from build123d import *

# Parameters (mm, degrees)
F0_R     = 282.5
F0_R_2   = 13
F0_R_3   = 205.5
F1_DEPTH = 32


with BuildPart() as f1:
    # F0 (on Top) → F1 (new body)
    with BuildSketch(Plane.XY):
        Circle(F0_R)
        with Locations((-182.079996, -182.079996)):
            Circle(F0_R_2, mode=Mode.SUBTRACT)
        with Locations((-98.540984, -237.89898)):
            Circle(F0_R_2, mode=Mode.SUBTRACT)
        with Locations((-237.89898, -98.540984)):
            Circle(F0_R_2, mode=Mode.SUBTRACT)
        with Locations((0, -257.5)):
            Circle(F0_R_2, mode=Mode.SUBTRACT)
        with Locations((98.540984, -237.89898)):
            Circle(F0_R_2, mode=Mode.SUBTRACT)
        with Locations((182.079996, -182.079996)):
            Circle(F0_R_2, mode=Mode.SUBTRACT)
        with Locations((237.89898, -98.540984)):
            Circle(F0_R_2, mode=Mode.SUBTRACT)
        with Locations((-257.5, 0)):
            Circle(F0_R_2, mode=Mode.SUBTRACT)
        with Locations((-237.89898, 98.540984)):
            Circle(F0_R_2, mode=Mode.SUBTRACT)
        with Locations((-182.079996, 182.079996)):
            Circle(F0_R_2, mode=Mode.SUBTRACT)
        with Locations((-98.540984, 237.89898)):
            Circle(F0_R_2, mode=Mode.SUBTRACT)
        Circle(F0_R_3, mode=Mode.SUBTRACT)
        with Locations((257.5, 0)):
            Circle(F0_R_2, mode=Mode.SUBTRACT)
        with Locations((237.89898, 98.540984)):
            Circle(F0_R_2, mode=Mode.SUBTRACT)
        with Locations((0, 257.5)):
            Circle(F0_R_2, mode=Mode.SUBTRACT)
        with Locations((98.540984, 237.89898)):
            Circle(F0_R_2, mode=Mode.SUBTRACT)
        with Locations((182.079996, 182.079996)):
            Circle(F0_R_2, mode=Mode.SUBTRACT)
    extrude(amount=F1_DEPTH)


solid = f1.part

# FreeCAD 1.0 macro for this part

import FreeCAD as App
import Part
import Sketcher

doc = App.newDocument("Part")
body = doc.addObject("PartDesign::Body", "Body")

sketch1 = body.newObject("Sketcher::SketchObject", "Sketch")
sketch1.AttachmentSupport = (doc.getObject("XY_Plane"), [""])
sketch1.MapMode = "FlatFace"
sketch1.addGeometry([
    Part.Circle(App.Vector(0, 0, 0), App.Vector(0, 0, 1), 282),
    Part.Circle(App.Vector(-182, -182, 0), App.Vector(0, 0, 1), 13),
    Part.Circle(App.Vector(-99, -238, 0), App.Vector(0, 0, 1), 13),
    Part.Circle(App.Vector(-238, -99, 0), App.Vector(0, 0, 1), 13),
    Part.Circle(App.Vector(0, -258, 0), App.Vector(0, 0, 1), 13),
    Part.Circle(App.Vector(99, -238, 0), App.Vector(0, 0, 1), 13),
    Part.Circle(App.Vector(182, -182, 0), App.Vector(0, 0, 1), 13),
    Part.Circle(App.Vector(238, -99, 0), App.Vector(0, 0, 1), 13),
    Part.Circle(App.Vector(-258, 0, 0), App.Vector(0, 0, 1), 13),
    Part.Circle(App.Vector(-238, 99, 0), App.Vector(0, 0, 1), 13),
    Part.Circle(App.Vector(-182, 182, 0), App.Vector(0, 0, 1), 13),
    Part.Circle(App.Vector(-99, 238, 0), App.Vector(0, 0, 1), 13),
    Part.Circle(App.Vector(0, 0, 0), App.Vector(0, 0, 1), 206),
    Part.Circle(App.Vector(258, 0, 0), App.Vector(0, 0, 1), 13),
    Part.Circle(App.Vector(238, 99, 0), App.Vector(0, 0, 1), 13),
    Part.Circle(App.Vector(0, 258, 0), App.Vector(0, 0, 1), 13),
    Part.Circle(App.Vector(99, 238, 0), App.Vector(0, 0, 1), 13),
    Part.Circle(App.Vector(182, 182, 0), App.Vector(0, 0, 1), 13),
], False)
sketch1.addConstraint([
    Sketcher.Constraint("Coincident", 0, 3, -1, 1),
    Sketcher.Constraint("Coincident", 12, 3, -1, 1),
    Sketcher.Constraint("Equal", 1, 2),
    Sketcher.Constraint("Equal", 2, 3),
    Sketcher.Constraint("Equal", 3, 4),
    Sketcher.Constraint("Equal", 4, 5),
    Sketcher.Constraint("Equal", 5, 6),
    Sketcher.Constraint("Equal", 6, 7),
    Sketcher.Constraint("Equal", 7, 8),
    Sketcher.Constraint("Equal", 8, 9),
    Sketcher.Constraint("Equal", 9, 10),
    Sketcher.Constraint("Equal", 10, 11),
    Sketcher.Constraint("Equal", 11, 13),
    Sketcher.Constraint("Equal", 13, 14),
    Sketcher.Constraint("Equal", 14, 15),
    Sketcher.Constraint("Equal", 15, 16),
    Sketcher.Constraint("Equal", 16, 17),
    Sketcher.Constraint("Symmetric", 7, 3, 9, 3, -1, 1),
    Sketcher.Constraint("Symmetric", 6, 3, 10, 3, -1, 1),
    Sketcher.Constraint("Symmetric", 5, 3, 11, 3, -1, 1),
    Sketcher.Constraint("Symmetric", 8, 3, 13, 3, -1, 1),
    Sketcher.Constraint("Symmetric", 3, 3, 14, 3, -1, 1),
    Sketcher.Constraint("Symmetric", 4, 3, 15, 3, -1, 1),
    Sketcher.Constraint("Symmetric", 2, 3, 16, 3, -1, 1),
    Sketcher.Constraint("Symmetric", 1, 3, 17, 3, -1, 1),
    Sketcher.Constraint("Symmetric", 2, 3, 5, 3, -2),
    Sketcher.Constraint("Symmetric", 1, 3, 6, 3, -2),
    Sketcher.Constraint("Symmetric", 3, 3, 7, 3, -2),
    Sketcher.Constraint("PointOnObject", 4, 3, -2),
    Sketcher.Constraint("PointOnObject", 8, 3, -1),
    Sketcher.Constraint("Diameter", 0, 565.0),
    Sketcher.Constraint("Diameter", 1, 26.0),
    Sketcher.Constraint("Diameter", 12, 411.0),
    Sketcher.Constraint("DistanceY", 4, 3, -1, 1, 257.5),
    Sketcher.Constraint("DistanceX", 8, 3, -1, 1, 257.5),
    Sketcher.Constraint("DistanceY", 2, 3, -1, 1, 237.89898),
    Sketcher.Constraint("DistanceX", 3, 3, -1, 1, 237.89898),
    Sketcher.Constraint("DistanceX", 1, 3, 2, 3, 83.539012),
    Sketcher.Constraint("DistanceY", 1, 3, 3, 3, 83.539012),
    Sketcher.Constraint("DistanceX", 1, 3, 5, 3, 280.62098),
    Sketcher.Constraint("DistanceY", 1, 3, 9, 3, 280.62098),
])
pad1 = body.newObject("PartDesign::Pad", "Pad")
pad1.Profile = sketch1
pad1.Length = 32

doc.recompute()
